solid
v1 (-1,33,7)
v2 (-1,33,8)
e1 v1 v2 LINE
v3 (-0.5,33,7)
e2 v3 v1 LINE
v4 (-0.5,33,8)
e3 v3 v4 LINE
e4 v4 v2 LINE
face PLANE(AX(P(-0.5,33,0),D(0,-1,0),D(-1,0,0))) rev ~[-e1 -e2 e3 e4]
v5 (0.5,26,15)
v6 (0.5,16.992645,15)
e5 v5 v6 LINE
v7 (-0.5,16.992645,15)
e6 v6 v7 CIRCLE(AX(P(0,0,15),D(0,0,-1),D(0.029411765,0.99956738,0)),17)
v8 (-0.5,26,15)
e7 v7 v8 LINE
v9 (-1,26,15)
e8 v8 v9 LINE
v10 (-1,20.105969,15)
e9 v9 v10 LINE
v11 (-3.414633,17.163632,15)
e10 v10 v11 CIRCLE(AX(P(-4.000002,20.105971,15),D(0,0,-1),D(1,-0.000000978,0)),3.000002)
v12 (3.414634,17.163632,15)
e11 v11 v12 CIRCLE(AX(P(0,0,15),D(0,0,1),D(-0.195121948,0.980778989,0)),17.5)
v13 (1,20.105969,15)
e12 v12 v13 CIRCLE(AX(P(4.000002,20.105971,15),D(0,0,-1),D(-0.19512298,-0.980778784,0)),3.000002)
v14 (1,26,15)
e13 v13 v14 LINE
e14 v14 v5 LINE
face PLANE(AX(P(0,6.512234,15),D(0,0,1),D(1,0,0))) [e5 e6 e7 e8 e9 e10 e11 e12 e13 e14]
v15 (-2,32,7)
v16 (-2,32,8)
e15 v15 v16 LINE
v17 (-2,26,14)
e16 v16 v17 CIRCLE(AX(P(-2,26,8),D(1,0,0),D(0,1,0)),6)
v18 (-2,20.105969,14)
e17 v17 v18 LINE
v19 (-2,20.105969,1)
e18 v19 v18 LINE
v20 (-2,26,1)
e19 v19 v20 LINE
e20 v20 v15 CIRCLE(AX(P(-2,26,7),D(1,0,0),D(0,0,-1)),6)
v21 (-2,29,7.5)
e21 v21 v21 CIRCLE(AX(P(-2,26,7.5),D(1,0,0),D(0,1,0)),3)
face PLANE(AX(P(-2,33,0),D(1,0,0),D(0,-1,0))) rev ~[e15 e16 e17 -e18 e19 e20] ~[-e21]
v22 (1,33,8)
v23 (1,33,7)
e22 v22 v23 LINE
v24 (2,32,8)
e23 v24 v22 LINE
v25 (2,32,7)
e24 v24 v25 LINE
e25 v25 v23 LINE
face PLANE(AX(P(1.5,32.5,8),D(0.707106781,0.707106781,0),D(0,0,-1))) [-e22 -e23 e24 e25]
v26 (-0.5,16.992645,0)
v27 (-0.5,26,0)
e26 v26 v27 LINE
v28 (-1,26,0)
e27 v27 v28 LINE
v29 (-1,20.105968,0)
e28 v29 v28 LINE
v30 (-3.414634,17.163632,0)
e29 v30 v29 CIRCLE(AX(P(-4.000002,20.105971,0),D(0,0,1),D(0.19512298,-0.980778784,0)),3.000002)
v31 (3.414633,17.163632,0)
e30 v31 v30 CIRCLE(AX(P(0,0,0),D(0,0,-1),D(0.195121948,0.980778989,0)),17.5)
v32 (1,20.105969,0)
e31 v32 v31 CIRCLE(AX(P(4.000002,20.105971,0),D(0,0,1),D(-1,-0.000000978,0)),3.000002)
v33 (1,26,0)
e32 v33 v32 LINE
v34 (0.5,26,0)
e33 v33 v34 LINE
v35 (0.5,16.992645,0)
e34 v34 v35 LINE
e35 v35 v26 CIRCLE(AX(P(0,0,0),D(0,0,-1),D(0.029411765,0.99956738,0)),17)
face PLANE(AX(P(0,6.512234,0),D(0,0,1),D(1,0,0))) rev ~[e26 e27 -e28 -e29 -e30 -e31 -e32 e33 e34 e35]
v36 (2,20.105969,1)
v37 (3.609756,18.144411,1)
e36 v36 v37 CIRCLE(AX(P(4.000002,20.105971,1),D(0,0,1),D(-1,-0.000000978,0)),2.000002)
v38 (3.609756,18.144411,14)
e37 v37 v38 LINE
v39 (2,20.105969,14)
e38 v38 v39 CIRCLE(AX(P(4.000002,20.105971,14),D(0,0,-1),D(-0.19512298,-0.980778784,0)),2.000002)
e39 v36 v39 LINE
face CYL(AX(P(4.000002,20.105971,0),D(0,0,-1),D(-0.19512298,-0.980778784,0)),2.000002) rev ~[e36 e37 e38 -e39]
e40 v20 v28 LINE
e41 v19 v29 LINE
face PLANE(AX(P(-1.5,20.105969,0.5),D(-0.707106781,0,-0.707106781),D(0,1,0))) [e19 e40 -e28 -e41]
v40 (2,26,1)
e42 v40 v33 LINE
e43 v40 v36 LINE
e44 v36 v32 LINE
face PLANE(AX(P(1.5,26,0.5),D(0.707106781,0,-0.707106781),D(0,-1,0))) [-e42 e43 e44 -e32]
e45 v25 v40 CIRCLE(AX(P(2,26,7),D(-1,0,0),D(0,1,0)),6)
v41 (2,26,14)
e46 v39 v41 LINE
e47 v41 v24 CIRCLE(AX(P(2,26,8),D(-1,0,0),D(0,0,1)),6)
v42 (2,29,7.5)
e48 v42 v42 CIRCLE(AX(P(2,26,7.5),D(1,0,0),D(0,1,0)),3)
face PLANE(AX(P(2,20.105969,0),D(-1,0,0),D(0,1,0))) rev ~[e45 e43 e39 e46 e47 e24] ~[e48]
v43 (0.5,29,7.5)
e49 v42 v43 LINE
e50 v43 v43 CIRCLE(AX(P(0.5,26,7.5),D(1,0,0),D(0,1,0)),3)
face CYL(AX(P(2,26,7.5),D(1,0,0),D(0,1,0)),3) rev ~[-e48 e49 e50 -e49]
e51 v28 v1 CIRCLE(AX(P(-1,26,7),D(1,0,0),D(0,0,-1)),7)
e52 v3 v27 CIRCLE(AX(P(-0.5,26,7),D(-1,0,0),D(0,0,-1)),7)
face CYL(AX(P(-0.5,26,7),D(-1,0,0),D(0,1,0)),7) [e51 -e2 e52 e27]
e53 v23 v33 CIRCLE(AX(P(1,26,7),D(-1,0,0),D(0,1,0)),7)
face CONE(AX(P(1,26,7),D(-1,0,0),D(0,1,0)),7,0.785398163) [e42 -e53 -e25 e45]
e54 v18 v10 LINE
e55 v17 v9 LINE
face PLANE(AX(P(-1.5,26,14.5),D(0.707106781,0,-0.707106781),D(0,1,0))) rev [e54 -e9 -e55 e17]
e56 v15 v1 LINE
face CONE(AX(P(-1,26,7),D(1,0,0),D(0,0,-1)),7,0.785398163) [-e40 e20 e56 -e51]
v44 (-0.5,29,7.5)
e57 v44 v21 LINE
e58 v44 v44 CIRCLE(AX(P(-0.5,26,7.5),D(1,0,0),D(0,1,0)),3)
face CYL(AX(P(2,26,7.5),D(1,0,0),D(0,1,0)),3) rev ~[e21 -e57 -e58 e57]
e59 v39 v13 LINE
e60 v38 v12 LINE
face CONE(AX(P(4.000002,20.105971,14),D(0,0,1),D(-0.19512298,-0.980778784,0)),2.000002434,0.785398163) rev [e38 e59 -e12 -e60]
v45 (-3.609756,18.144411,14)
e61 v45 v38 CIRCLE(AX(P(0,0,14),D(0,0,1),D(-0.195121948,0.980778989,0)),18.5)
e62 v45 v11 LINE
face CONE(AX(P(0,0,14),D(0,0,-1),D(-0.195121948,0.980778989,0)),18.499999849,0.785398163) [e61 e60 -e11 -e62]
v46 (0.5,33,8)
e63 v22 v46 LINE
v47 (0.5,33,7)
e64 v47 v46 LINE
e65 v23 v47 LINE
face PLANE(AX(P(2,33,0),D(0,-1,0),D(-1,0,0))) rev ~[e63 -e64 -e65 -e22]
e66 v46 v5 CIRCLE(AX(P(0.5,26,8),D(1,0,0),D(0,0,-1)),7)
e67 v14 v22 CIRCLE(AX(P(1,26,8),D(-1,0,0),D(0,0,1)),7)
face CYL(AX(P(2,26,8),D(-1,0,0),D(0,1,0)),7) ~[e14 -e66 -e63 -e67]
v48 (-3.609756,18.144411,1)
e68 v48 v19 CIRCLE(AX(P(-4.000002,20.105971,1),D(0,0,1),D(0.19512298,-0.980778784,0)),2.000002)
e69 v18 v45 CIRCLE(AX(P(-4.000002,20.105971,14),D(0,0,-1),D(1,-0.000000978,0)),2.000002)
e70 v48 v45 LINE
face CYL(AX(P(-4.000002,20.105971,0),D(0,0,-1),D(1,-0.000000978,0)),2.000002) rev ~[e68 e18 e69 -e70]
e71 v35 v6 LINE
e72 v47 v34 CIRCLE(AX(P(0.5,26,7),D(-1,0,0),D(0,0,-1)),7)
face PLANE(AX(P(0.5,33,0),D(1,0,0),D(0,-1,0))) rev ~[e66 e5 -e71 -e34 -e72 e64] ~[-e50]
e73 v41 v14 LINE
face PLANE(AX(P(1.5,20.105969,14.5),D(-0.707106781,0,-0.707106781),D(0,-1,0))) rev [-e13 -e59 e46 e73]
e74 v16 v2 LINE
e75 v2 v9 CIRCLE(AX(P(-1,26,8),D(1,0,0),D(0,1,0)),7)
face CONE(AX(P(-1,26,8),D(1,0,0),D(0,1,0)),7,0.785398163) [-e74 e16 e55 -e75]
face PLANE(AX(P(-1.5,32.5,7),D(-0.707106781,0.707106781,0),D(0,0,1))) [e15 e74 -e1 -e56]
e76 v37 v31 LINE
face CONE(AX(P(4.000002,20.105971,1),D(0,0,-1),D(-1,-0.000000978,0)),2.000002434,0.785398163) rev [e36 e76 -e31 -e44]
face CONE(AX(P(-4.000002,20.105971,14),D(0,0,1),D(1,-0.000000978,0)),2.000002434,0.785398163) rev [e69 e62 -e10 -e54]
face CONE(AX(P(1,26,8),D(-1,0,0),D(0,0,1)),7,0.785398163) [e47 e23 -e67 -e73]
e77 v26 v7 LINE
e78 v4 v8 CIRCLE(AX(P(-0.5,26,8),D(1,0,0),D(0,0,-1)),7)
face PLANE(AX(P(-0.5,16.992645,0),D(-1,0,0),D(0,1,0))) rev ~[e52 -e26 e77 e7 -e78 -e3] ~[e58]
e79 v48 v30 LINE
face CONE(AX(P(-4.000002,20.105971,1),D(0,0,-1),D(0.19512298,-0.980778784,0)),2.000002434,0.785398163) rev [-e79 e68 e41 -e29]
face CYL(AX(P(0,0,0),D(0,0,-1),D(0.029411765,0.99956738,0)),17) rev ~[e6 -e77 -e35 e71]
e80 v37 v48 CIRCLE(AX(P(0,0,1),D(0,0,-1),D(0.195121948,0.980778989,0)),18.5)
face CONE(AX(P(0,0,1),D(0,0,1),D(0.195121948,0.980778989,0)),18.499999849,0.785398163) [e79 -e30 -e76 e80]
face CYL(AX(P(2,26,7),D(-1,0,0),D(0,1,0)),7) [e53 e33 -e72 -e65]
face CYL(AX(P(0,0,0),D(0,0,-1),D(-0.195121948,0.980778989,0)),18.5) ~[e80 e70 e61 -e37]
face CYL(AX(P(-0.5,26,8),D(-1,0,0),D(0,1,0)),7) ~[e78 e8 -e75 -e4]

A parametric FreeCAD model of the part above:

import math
import FreeCAD as App
import Part
import Sketcher
from FreeCAD import Vector
Q = App.Units.Quantity


def edges_at(feature, points):
    """Names of the edges that pass closest to the given points."""
    edges = feature.Shape.Edges
    near = lambda p: min(range(len(edges)), key=lambda i: edges[i].distToShape(Part.Vertex(*p))[0])
    return sorted({f"Edge{near(p) + 1}" for p in points})

doc = App.newDocument("Part")
body = doc.addObject("PartDesign::Body", "Body")

sketch1 = body.newObject("Sketcher::SketchObject", "Sketch")
sketch1.AttachmentSupport = (doc.getObject("XY_Plane"), [""])
sketch1.MapMode = "FlatFace"
sketch1.addGeometry([
    Part.ArcOfCircle(Part.Circle(Vector(-4, 20.1, 0), Vector(0, 0, 1), 2), math.radians(-79), math.radians(0)),
    Part.ArcOfCircle(Part.Circle(Vector(0, 0, 0), Vector(0, 0, 1), 18.5), math.radians(101), math.radians(439)),
    Part.ArcOfCircle(Part.Circle(Vector(4, 20.1, 0), Vector(0, 0, 1), 2), math.radians(-180), math.radians(-101)),
    Part.LineSegment(Vector(2, 20.1, 0), Vector(2, 33, 0)),
    Part.LineSegment(Vector(2, 33, 0), Vector(0.5, 33, 0)),
    Part.LineSegment(Vector(0.5, 33, 0), Vector(0.5, 17, 0)),
    Part.ArcOfCircle(Part.Circle(Vector(0, 0, 0), Vector(0, 0, 1), 17), math.radians(92), math.radians(448)),
    Part.LineSegment(Vector(-0.5, 17, 0), Vector(-0.5, 33, 0)),
    Part.LineSegment(Vector(-0.5, 33, 0), Vector(-2, 33, 0)),
    Part.LineSegment(Vector(-2, 33, 0), Vector(-2, 20.1, 0)),
], False)
sketch1.addConstraint([
    Sketcher.Constraint("Tangent", 0, 1, 1, 1),
    Sketcher.Constraint("Tangent", 1, 2, 2, 2),
    Sketcher.Constraint("Tangent", 2, 1, 3, 1),
    Sketcher.Constraint("Coincident", 3, 2, 4, 1),
    Sketcher.Constraint("Coincident", 4, 2, 5, 1),
    Sketcher.Constraint("Coincident", 5, 2, 6, 2),
    Sketcher.Constraint("Coincident", 6, 1, 7, 1),
    Sketcher.Constraint("Coincident", 7, 2, 8, 1),
    Sketcher.Constraint("Coincident", 8, 2, 9, 1),
    Sketcher.Constraint("Tangent", 9, 2, 0, 2),
    Sketcher.Constraint("Vertical", 3),
    Sketcher.Constraint("Horizontal", 4),
    Sketcher.Constraint("Vertical", 5),
    Sketcher.Constraint("Vertical", 7),
    Sketcher.Constraint("Horizontal", 8),
    Sketcher.Constraint("Vertical", 9),
    Sketcher.Constraint("Coincident", 1, 3, -1, 1),
    Sketcher.Constraint("Coincident", 6, 3, -1, 1),
    Sketcher.Constraint("Equal", 0, 2),
    Sketcher.Constraint("Symmetric", 4, 2, 7, 2, -2),
    Sketcher.Constraint("Horizontal", 0, 3, 2, 3),
    Sketcher.Constraint("Radius", 6, Q("17 mm")),
    Sketcher.Constraint("Radius", 1, Q("18.5 mm")),
    Sketcher.Constraint("DistanceX", 4, 2, 4, 1, Q("1.5 mm")),
    Sketcher.Constraint("DistanceX", -1, 1, 2, 1, Q("2 mm")),
    Sketcher.Constraint("DistanceY", -1, 1, 3, 2, Q("33 mm")),
    Sketcher.Constraint("Radius", 0, Q("2.000002 mm")),
])
pad1 = body.newObject("PartDesign::Pad", "Pad")
pad1.Profile = sketch1
pad1.Length = 15
doc.recompute()

fillet = body.newObject("PartDesign::Fillet", "Fillet")
fillet.Base = (pad1, edges_at(pad1, [
    (1.25, 33, 15),
    (-1.25, 33, 15),
    (1.25, 33, 0),
    (-1.25, 33, 0),
]))
fillet.Radius = 7

sketch2 = body.newObject("Sketcher::SketchObject", "Sketch001")
sketch2.AttachmentSupport = (doc.getObject("YZ_Plane"), [""])
sketch2.MapMode = "FlatFace"
sketch2.AttachmentOffset = App.Placement(Vector(0, 0, 2), App.Rotation())
sketch2.addGeometry(Part.Circle(Vector(26, 7.5, 0), Vector(0, 0, 1), 3), False)
sketch2.addConstraint([
    Sketcher.Constraint("Diameter", 0, Q("6 mm")),
    Sketcher.Constraint("DistanceX", -1, 1, 0, 3, Q("26 mm")),
    Sketcher.Constraint("DistanceY", -1, 1, 0, 3, Q("7.5 mm")),
])
pocket1 = body.newObject("PartDesign::Pocket", "Pocket")
pocket1.Profile = sketch2
pocket1.Length = 25
doc.recompute()

chamfer = body.newObject("PartDesign::Chamfer", "Chamfer")
chamfer.Base = (pocket1, edges_at(pocket1, [(2, 23.053, 15)]))
chamfer.ChamferType = "Two distances"
chamfer.Size = 1
chamfer.Size2 = 1

doc.recompute()
